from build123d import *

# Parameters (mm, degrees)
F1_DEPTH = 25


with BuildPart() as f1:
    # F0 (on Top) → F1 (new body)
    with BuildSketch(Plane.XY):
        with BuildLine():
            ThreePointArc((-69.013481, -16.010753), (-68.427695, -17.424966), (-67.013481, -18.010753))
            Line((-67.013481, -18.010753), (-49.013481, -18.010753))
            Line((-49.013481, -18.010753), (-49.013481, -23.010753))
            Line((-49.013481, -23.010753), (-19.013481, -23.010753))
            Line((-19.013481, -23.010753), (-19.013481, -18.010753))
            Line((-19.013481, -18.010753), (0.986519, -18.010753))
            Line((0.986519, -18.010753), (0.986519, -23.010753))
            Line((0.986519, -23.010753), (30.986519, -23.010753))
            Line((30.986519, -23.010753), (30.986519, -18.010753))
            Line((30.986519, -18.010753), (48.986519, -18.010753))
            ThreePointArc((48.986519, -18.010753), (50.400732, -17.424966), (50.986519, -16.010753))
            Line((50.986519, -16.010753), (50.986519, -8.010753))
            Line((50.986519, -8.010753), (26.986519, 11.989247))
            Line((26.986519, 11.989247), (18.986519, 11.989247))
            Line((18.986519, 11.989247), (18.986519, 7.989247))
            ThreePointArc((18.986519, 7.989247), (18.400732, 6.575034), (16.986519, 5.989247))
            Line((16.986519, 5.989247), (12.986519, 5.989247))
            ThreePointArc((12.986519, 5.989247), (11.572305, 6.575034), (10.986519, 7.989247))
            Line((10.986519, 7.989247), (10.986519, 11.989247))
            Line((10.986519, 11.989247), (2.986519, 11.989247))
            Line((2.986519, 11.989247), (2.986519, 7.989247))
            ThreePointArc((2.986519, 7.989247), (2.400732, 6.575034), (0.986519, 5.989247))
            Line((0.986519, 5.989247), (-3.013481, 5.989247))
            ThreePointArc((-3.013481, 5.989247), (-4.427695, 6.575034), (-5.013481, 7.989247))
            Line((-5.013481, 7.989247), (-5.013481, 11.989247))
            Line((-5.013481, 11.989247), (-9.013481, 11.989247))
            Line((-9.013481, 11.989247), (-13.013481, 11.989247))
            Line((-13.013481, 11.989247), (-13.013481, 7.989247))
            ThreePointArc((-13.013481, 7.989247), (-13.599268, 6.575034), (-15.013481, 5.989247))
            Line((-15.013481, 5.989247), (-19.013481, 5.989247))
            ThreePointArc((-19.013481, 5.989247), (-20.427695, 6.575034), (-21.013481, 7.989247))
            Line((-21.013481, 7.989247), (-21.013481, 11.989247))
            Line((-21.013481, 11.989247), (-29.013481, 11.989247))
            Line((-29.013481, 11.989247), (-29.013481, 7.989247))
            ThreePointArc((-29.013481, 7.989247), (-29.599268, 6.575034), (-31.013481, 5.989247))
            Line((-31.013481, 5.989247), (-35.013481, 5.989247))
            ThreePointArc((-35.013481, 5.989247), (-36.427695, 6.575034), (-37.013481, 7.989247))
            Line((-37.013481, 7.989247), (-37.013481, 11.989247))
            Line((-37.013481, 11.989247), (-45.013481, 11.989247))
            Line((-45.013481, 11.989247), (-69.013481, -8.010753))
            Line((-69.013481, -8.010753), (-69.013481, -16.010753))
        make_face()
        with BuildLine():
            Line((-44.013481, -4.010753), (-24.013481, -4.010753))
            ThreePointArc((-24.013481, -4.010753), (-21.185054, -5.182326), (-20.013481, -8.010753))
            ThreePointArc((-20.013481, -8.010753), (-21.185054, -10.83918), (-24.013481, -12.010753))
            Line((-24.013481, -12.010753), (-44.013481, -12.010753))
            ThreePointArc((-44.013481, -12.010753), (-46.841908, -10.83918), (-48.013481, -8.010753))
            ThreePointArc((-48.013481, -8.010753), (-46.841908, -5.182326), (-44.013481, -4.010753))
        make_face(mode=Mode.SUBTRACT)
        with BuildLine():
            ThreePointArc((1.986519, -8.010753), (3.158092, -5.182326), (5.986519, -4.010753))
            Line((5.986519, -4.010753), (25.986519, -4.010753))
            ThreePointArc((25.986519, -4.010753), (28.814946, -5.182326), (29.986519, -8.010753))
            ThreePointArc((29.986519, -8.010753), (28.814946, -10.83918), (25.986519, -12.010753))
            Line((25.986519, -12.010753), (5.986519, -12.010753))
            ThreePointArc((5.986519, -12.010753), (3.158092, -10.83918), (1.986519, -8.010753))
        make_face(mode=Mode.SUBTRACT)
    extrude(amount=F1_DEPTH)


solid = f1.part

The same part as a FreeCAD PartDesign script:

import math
import FreeCAD as App
import Part
import Sketcher

doc = App.newDocument("Part")
body = doc.addObject("PartDesign::Body", "Body")

sketch1 = body.newObject("Sketcher::SketchObject", "Sketch")
sketch1.AttachmentSupport = (doc.getObject("XY_Plane"), [""])
sketch1.MapMode = "FlatFace"
sketch1.addGeometry(Part.ArcOfCircle(Part.Circle(App.Vector(-67, -16, 0), App.Vector(0, 0, 1), 2), math.radians(-180), math.radians(-90)), False)
sketch1.addGeometry(Part.LineSegment(App.Vector(-67, -18, 0), App.Vector(-49, -18, 0)), False)
sketch1.addGeometry(Part.LineSegment(App.Vector(-49, -18, 0), App.Vector(-49, -23, 0)), False)
sketch1.addGeometry(Part.LineSegment(App.Vector(-49, -23, 0), App.Vector(-19, -23, 0)), False)
sketch1.addGeometry(Part.LineSegment(App.Vector(-19, -23, 0), App.Vector(-19, -18, 0)), False)
sketch1.addGeometry(Part.LineSegment(App.Vector(-19, -18, 0), App.Vector(1, -18, 0)), False)
sketch1.addGeometry(Part.LineSegment(App.Vector(1, -18, 0), App.Vector(1, -23, 0)), False)
sketch1.addGeometry(Part.LineSegment(App.Vector(1, -23, 0), App.Vector(31, -23, 0)), False)
sketch1.addGeometry(Part.LineSegment(App.Vector(31, -23, 0), App.Vector(31, -18, 0)), False)
sketch1.addGeometry(Part.LineSegment(App.Vector(31, -18, 0), App.Vector(49, -18, 0)), False)
sketch1.addGeometry(Part.ArcOfCircle(Part.Circle(App.Vector(49, -16, 0), App.Vector(0, 0, 1), 2), math.radians(-90), math.radians(0)), False)
sketch1.addGeometry(Part.LineSegment(App.Vector(51, -16, 0), App.Vector(51, -8, 0)), False)
sketch1.addGeometry(Part.LineSegment(App.Vector(51, -8, 0), App.Vector(27, 12, 0)), False)
sketch1.addGeometry(Part.LineSegment(App.Vector(27, 12, 0), App.Vector(19, 12, 0)), False)
sketch1.addGeometry(Part.LineSegment(App.Vector(19, 12, 0), App.Vector(19, 8, 0)), False)
sketch1.addGeometry(Part.ArcOfCircle(Part.Circle(App.Vector(17, 8, 0), App.Vector(0, 0, 1), 2), math.radians(-90), math.radians(0)), False)
sketch1.addGeometry(Part.LineSegment(App.Vector(17, 6, 0), App.Vector(13, 6, 0)), False)
sketch1.addGeometry(Part.ArcOfCircle(Part.Circle(App.Vector(13, 8, 0), App.Vector(0, 0, 1), 2), math.radians(-180), math.radians(-90)), False)
sketch1.addGeometry(Part.LineSegment(App.Vector(11, 8, 0), App.Vector(11, 12, 0)), False)
sketch1.addGeometry(Part.LineSegment(App.Vector(11, 12, 0), App.Vector(3, 12, 0)), False)
sketch1.addGeometry(Part.LineSegment(App.Vector(3, 12, 0), App.Vector(3, 8, 0)), False)
sketch1.addGeometry(Part.ArcOfCircle(Part.Circle(App.Vector(1, 8, 0), App.Vector(0, 0, 1), 2), math.radians(-90), math.radians(0)), False)
sketch1.addGeometry(Part.LineSegment(App.Vector(1, 6, 0), App.Vector(-3, 6, 0)), False)
sketch1.addGeometry(Part.ArcOfCircle(Part.Circle(App.Vector(-3, 8, 0), App.Vector(0, 0, 1), 2), math.radians(-180), math.radians(-90)), False)
sketch1.addGeometry(Part.LineSegment(App.Vector(-5, 8, 0), App.Vector(-5, 12, 0)), False)
sketch1.addGeometry(Part.LineSegment(App.Vector(-5, 12, 0), App.Vector(-13, 12, 0)), False)
sketch1.addGeometry(Part.LineSegment(App.Vector(-13, 12, 0), App.Vector(-13, 8, 0)), False)
sketch1.addGeometry(Part.ArcOfCircle(Part.Circle(App.Vector(-15, 8, 0), App.Vector(0, 0, 1), 2), math.radians(-90), math.radians(0)), False)
sketch1.addGeometry(Part.LineSegment(App.Vector(-15, 6, 0), App.Vector(-19, 6, 0)), False)
sketch1.addGeometry(Part.ArcOfCircle(Part.Circle(App.Vector(-19, 8, 0), App.Vector(0, 0, 1), 2), math.radians(-180), math.radians(-90)), False)
sketch1.addGeometry(Part.LineSegment(App.Vector(-21, 8, 0), App.Vector(-21, 12, 0)), False)
sketch1.addGeometry(Part.LineSegment(App.Vector(-21, 12, 0), App.Vector(-29, 12, 0)), False)
sketch1.addGeometry(Part.LineSegment(App.Vector(-29, 12, 0), App.Vector(-29, 8, 0)), False)
sketch1.addGeometry(Part.ArcOfCircle(Part.Circle(App.Vector(-31, 8, 0), App.Vector(0, 0, 1), 2), math.radians(-90), math.radians(0)), False)
sketch1.addGeometry(Part.LineSegment(App.Vector(-31, 6, 0), App.Vector(-35, 6, 0)), False)
sketch1.addGeometry(Part.ArcOfCircle(Part.Circle(App.Vector(-35, 8, 0), App.Vector(0, 0, 1), 2), math.radians(-180), math.radians(-90)), False)
sketch1.addGeometry(Part.LineSegment(App.Vector(-37, 8, 0), App.Vector(-37, 12, 0)), False)
sketch1.addGeometry(Part.LineSegment(App.Vector(-37, 12, 0), App.Vector(-45, 12, 0)), False)
sketch1.addGeometry(Part.LineSegment(App.Vector(-45, 12, 0), App.Vector(-69, -8, 0)), False)
sketch1.addGeometry(Part.LineSegment(App.Vector(-69, -8, 0), App.Vector(-69, -16, 0)), False)
sketch1.addGeometry(Part.ArcOfCircle(Part.Circle(App.Vector(-44, -8, 0), App.Vector(0, 0, 1), 4), math.radians(90), math.radians(180)), False)
sketch1.addGeometry(Part.LineSegment(App.Vector(-44, -4, 0), App.Vector(-24, -4, 0)), False)
sketch1.addGeometry(Part.ArcOfCircle(Part.Circle(App.Vector(-24, -8, 0), App.Vector(0, 0, 1), 4), math.radians(0), math.radians(90)), False)
sketch1.addGeometry(Part.ArcOfCircle(Part.Circle(App.Vector(-24, -8, 0), App.Vector(0, 0, 1), 4), math.radians(-90), math.radians(0)), False)
sketch1.addGeometry(Part.LineSegment(App.Vector(-24, -12, 0), App.Vector(-44, -12, 0)), False)
sketch1.addGeometry(Part.ArcOfCircle(Part.Circle(App.Vector(-44, -8, 0), App.Vector(0, 0, 1), 4), math.radians(-180), math.radians(-90)), False)
sketch1.addGeometry(Part.ArcOfCircle(Part.Circle(App.Vector(6, -8, 0), App.Vector(0, 0, 1), 4), math.radians(-180), math.radians(-90)), False)
sketch1.addGeometry(Part.ArcOfCircle(Part.Circle(App.Vector(6, -8, 0), App.Vector(0, 0, 1), 4), math.radians(90), math.radians(180)), False)
sketch1.addGeometry(Part.LineSegment(App.Vector(6, -4, 0), App.Vector(26, -4, 0)), False)
sketch1.addGeometry(Part.ArcOfCircle(Part.Circle(App.Vector(26, -8, 0), App.Vector(0, 0, 1), 4), math.radians(0), math.radians(90)), False)
sketch1.addGeometry(Part.ArcOfCircle(Part.Circle(App.Vector(26, -8, 0), App.Vector(0, 0, 1), 4), math.radians(-90), math.radians(0)), False)
sketch1.addGeometry(Part.LineSegment(App.Vector(26, -12, 0), App.Vector(6, -12, 0)), False)
sketch1.addConstraint(Sketcher.Constraint("Tangent", 0, 2, 1, 1))
sketch1.addConstraint(Sketcher.Constraint("Coincident", 1, 2, 2, 1))
sketch1.addConstraint(Sketcher.Constraint("Coincident", 2, 2, 3, 1))
sketch1.addConstraint(Sketcher.Constraint("Coincident", 3, 2, 4, 1))
sketch1.addConstraint(Sketcher.Constraint("Coincident", 4, 2, 5, 1))
sketch1.addConstraint(Sketcher.Constraint("Coincident", 5, 2, 6, 1))
sketch1.addConstraint(Sketcher.Constraint("Coincident", 6, 2, 7, 1))
sketch1.addConstraint(Sketcher.Constraint("Coincident", 7, 2, 8, 1))
sketch1.addConstraint(Sketcher.Constraint("Coincident", 8, 2, 9, 1))
sketch1.addConstraint(Sketcher.Constraint("Tangent", 9, 2, 10, 1))
sketch1.addConstraint(Sketcher.Constraint("Tangent", 10, 2, 11, 1))
sketch1.addConstraint(Sketcher.Constraint("Coincident", 11, 2, 12, 1))
sketch1.addConstraint(Sketcher.Constraint("Coincident", 12, 2, 13, 1))
sketch1.addConstraint(Sketcher.Constraint("Coincident", 13, 2, 14, 1))
sketch1.addConstraint(Sketcher.Constraint("Tangent", 14, 2, 15, 2))
sketch1.addConstraint(Sketcher.Constraint("Tangent", 15, 1, 16, 1))
sketch1.addConstraint(Sketcher.Constraint("Tangent", 16, 2, 17, 2))
sketch1.addConstraint(Sketcher.Constraint("Tangent", 17, 1, 18, 1))
sketch1.addConstraint(Sketcher.Constraint("Coincident", 18, 2, 19, 1))
sketch1.addConstraint(Sketcher.Constraint("Coincident", 19, 2, 20, 1))
sketch1.addConstraint(Sketcher.Constraint("Tangent", 20, 2, 21, 2))
sketch1.addConstraint(Sketcher.Constraint("Tangent", 21, 1, 22, 1))
sketch1.addConstraint(Sketcher.Constraint("Tangent", 22, 2, 23, 2))
sketch1.addConstraint(Sketcher.Constraint("Tangent", 23, 1, 24, 1))
sketch1.addConstraint(Sketcher.Constraint("Coincident", 24, 2, 25, 1))
sketch1.addConstraint(Sketcher.Constraint("Coincident", 25, 2, 26, 1))
sketch1.addConstraint(Sketcher.Constraint("Tangent", 26, 2, 27, 2))
sketch1.addConstraint(Sketcher.Constraint("Tangent", 27, 1, 28, 1))
sketch1.addConstraint(Sketcher.Constraint("Tangent", 28, 2, 29, 2))
sketch1.addConstraint(Sketcher.Constraint("Tangent", 29, 1, 30, 1))
sketch1.addConstraint(Sketcher.Constraint("Coincident", 30, 2, 31, 1))
sketch1.addConstraint(Sketcher.Constraint("Coincident", 31, 2, 32, 1))
sketch1.addConstraint(Sketcher.Constraint("Tangent", 32, 2, 33, 2))
sketch1.addConstraint(Sketcher.Constraint("Tangent", 33, 1, 34, 1))
sketch1.addConstraint(Sketcher.Constraint("Tangent", 34, 2, 35, 2))
sketch1.addConstraint(Sketcher.Constraint("Tangent", 35, 1, 36, 1))
sketch1.addConstraint(Sketcher.Constraint("Coincident", 36, 2, 37, 1))
sketch1.addConstraint(Sketcher.Constraint("Coincident", 37, 2, 38, 1))
sketch1.addConstraint(Sketcher.Constraint("Coincident", 38, 2, 39, 1))
sketch1.addConstraint(Sketcher.Constraint("Tangent", 39, 2, 0, 1))
sketch1.addConstraint(Sketcher.Constraint("Tangent", 40, 1, 41, 1))
sketch1.addConstraint(Sketcher.Constraint("Tangent", 41, 2, 42, 2))
sketch1.addConstraint(Sketcher.Constraint("Tangent", 42, 1, 43, 2))
sketch1.addConstraint(Sketcher.Constraint("Tangent", 43, 1, 44, 1))
sketch1.addConstraint(Sketcher.Constraint("Tangent", 44, 2, 45, 2))
sketch1.addConstraint(Sketcher.Constraint("Tangent", 45, 1, 40, 2))
sketch1.addConstraint(Sketcher.Constraint("Tangent", 46, 1, 47, 2))
sketch1.addConstraint(Sketcher.Constraint("Tangent", 47, 1, 48, 1))
sketch1.addConstraint(Sketcher.Constraint("Tangent", 48, 2, 49, 2))
sketch1.addConstraint(Sketcher.Constraint("Tangent", 49, 1, 50, 2))
sketch1.addConstraint(Sketcher.Constraint("Tangent", 50, 1, 51, 1))
sketch1.addConstraint(Sketcher.Constraint("Tangent", 51, 2, 46, 2))
sketch1.addConstraint(Sketcher.Constraint("Horizontal", 1))
sketch1.addConstraint(Sketcher.Constraint("Vertical", 2))
sketch1.addConstraint(Sketcher.Constraint("Horizontal", 3))
sketch1.addConstraint(Sketcher.Constraint("Vertical", 4))
sketch1.addConstraint(Sketcher.Constraint("Horizontal", 5))
sketch1.addConstraint(Sketcher.Constraint("Vertical", 6))
sketch1.addConstraint(Sketcher.Constraint("Horizontal", 7))
sketch1.addConstraint(Sketcher.Constraint("Vertical", 8))
sketch1.addConstraint(Sketcher.Constraint("Horizontal", 9))
sketch1.addConstraint(Sketcher.Constraint("Vertical", 11))
sketch1.addConstraint(Sketcher.Constraint("Horizontal", 13))
sketch1.addConstraint(Sketcher.Constraint("Vertical", 14))
sketch1.addConstraint(Sketcher.Constraint("Horizontal", 16))
sketch1.addConstraint(Sketcher.Constraint("Vertical", 18))
sketch1.addConstraint(Sketcher.Constraint("Horizontal", 19))
sketch1.addConstraint(Sketcher.Constraint("Vertical", 20))
sketch1.addConstraint(Sketcher.Constraint("Horizontal", 22))
sketch1.addConstraint(Sketcher.Constraint("Vertical", 24))
sketch1.addConstraint(Sketcher.Constraint("Horizontal", 25))
sketch1.addConstraint(Sketcher.Constraint("Vertical", 26))
sketch1.addConstraint(Sketcher.Constraint("Horizontal", 28))
sketch1.addConstraint(Sketcher.Constraint("Vertical", 30))
sketch1.addConstraint(Sketcher.Constraint("Horizontal", 31))
sketch1.addConstraint(Sketcher.Constraint("Vertical", 32))
sketch1.addConstraint(Sketcher.Constraint("Horizontal", 34))
sketch1.addConstraint(Sketcher.Constraint("Vertical", 36))
sketch1.addConstraint(Sketcher.Constraint("Horizontal", 37))
sketch1.addConstraint(Sketcher.Constraint("Vertical", 39))
sketch1.addConstraint(Sketcher.Constraint("Horizontal", 41))
sketch1.addConstraint(Sketcher.Constraint("Horizontal", 44))
sketch1.addConstraint(Sketcher.Constraint("Horizontal", 48))
sketch1.addConstraint(Sketcher.Constraint("Horizontal", 51))
sketch1.addConstraint(Sketcher.Constraint("Equal", 0, 10))
sketch1.addConstraint(Sketcher.Constraint("Equal", 10, 15))
sketch1.addConstraint(Sketcher.Constraint("Equal", 15, 17))
sketch1.addConstraint(Sketcher.Constraint("Equal", 17, 21))
sketch1.addConstraint(Sketcher.Constraint("Equal", 21, 23))
sketch1.addConstraint(Sketcher.Constraint("Equal", 23, 27))
sketch1.addConstraint(Sketcher.Constraint("Equal", 27, 29))
sketch1.addConstraint(Sketcher.Constraint("Equal", 29, 33))
sketch1.addConstraint(Sketcher.Constraint("Equal", 33, 35))
sketch1.addConstraint(Sketcher.Constraint("Equal", 40, 42))
sketch1.addConstraint(Sketcher.Constraint("Equal", 42, 43))
sketch1.addConstraint(Sketcher.Constraint("Equal", 45, 46))
sketch1.addConstraint(Sketcher.Constraint("Equal", 46, 47))
sketch1.addConstraint(Sketcher.Constraint("Equal", 47, 49))
sketch1.addConstraint(Sketcher.Constraint("Horizontal", 0, 3, 10, 3))
sketch1.addConstraint(Sketcher.Constraint("Horizontal", 17, 3, 21, 3))
sketch1.addConstraint(Sketcher.Constraint("Horizontal", 23, 3, 27, 3))
sketch1.addConstraint(Sketcher.Constraint("Horizontal", 29, 3, 33, 3))
sketch1.addConstraint(Sketcher.Constraint("Horizontal", 45, 3, 46, 3))
sketch1.addConstraint(Sketcher.Constraint("Horizontal", 1, 2, 4, 2))
sketch1.addConstraint(Sketcher.Constraint("Horizontal", 3, 2, 6, 2))
sketch1.addConstraint(Sketcher.Constraint("Horizontal", 50, 3, 11, 2))
sketch1.addConstraint(Sketcher.Constraint("Horizontal", 13, 2, 18, 2))
sketch1.addConstraint(Sketcher.Constraint("Horizontal", 19, 2, 24, 2))
sketch1.addConstraint(Sketcher.Constraint("Horizontal", 25, 2, 30, 2))
sketch1.addConstraint(Sketcher.Constraint("Horizontal", 31, 2, 36, 2))
sketch1.addConstraint(Sketcher.Constraint("Horizontal", 11, 2, 38, 2))
sketch1.addConstraint(Sketcher.Constraint("Horizontal", 38, 2, 42, 1))
sketch1.addConstraint(Sketcher.Constraint("Horizontal", 42, 1, 45, 1))
sketch1.addConstraint(Sketcher.Constraint("Horizontal", 45, 1, 46, 1))
sketch1.addConstraint(Sketcher.Constraint("Horizontal", 46, 1, 49, 1))
sketch1.addConstraint(Sketcher.Constraint("Vertical", 29, 3, 3, 2))
sketch1.addConstraint(Sketcher.Constraint("Vertical", 21, 3, 5, 2))
sketch1.addConstraint(Sketcher.Constraint("Equal", 3, 7))
sketch1.addConstraint(Sketcher.Constraint("Equal", 1, 9))
sketch1.addConstraint(Sketcher.Constraint("Equal", 13, 19))
sketch1.addConstraint(Sketcher.Constraint("Equal", 16, 22))
sketch1.addConstraint(Sketcher.Constraint("Equal", 19, 25))
sketch1.addConstraint(Sketcher.Constraint("Equal", 22, 28))
sketch1.addConstraint(Sketcher.Constraint("Equal", 25, 31))
sketch1.addConstraint(Sketcher.Constraint("Equal", 28, 34))
sketch1.addConstraint(Sketcher.Constraint("Equal", 31, 37))
sketch1.addConstraint(Sketcher.Constraint("Equal", 5, 41))
sketch1.addConstraint(Sketcher.Constraint("Equal", 44, 48))
sketch1.addConstraint(Sketcher.Constraint("Equal", 37, 11))
sketch1.addConstraint(Sketcher.Constraint("Equal", 34, 14))
sketch1.addConstraint(Sketcher.Constraint("Radius", 0, 2.0))
sketch1.addConstraint(Sketcher.Constraint("Radius", 40, 4.0))
sketch1.addConstraint(Sketcher.Constraint("DistanceX", 1, 1, 1, 2, 18.0))
sketch1.addConstraint(Sketcher.Constraint("DistanceX", 3, 1, 3, 2, 30.0))
sketch1.addConstraint(Sketcher.Constraint("DistanceX", 5, 1, 5, 2, 20.0))
sketch1.addConstraint(Sketcher.Constraint("DistanceX", 13, 2, 13, 1, 8.0))
sketch1.addConstraint(Sketcher.Constraint("DistanceY", 2, 2, 2, 1, 5.0))
sketch1.addConstraint(Sketcher.Constraint("Distance", 12, 31.240999))
sketch1.addConstraint(Sketcher.Constraint("DistanceX", 0, 3, -1, 1, 67.013481))
sketch1.addConstraint(Sketcher.Constraint("DistanceY", 10, 3, -1, 1, 16.010751))
sketch1.addConstraint(Sketcher.Constraint("DistanceX", 40, 3, -1, 1, 44.013481))
sketch1.addConstraint(Sketcher.Constraint("DistanceX", -1, 1, 46, 3, 5.986519))
pad1 = body.newObject("PartDesign::Pad", "Pad")
pad1.Profile = sketch1
pad1.Length = 25

doc.recompute()
